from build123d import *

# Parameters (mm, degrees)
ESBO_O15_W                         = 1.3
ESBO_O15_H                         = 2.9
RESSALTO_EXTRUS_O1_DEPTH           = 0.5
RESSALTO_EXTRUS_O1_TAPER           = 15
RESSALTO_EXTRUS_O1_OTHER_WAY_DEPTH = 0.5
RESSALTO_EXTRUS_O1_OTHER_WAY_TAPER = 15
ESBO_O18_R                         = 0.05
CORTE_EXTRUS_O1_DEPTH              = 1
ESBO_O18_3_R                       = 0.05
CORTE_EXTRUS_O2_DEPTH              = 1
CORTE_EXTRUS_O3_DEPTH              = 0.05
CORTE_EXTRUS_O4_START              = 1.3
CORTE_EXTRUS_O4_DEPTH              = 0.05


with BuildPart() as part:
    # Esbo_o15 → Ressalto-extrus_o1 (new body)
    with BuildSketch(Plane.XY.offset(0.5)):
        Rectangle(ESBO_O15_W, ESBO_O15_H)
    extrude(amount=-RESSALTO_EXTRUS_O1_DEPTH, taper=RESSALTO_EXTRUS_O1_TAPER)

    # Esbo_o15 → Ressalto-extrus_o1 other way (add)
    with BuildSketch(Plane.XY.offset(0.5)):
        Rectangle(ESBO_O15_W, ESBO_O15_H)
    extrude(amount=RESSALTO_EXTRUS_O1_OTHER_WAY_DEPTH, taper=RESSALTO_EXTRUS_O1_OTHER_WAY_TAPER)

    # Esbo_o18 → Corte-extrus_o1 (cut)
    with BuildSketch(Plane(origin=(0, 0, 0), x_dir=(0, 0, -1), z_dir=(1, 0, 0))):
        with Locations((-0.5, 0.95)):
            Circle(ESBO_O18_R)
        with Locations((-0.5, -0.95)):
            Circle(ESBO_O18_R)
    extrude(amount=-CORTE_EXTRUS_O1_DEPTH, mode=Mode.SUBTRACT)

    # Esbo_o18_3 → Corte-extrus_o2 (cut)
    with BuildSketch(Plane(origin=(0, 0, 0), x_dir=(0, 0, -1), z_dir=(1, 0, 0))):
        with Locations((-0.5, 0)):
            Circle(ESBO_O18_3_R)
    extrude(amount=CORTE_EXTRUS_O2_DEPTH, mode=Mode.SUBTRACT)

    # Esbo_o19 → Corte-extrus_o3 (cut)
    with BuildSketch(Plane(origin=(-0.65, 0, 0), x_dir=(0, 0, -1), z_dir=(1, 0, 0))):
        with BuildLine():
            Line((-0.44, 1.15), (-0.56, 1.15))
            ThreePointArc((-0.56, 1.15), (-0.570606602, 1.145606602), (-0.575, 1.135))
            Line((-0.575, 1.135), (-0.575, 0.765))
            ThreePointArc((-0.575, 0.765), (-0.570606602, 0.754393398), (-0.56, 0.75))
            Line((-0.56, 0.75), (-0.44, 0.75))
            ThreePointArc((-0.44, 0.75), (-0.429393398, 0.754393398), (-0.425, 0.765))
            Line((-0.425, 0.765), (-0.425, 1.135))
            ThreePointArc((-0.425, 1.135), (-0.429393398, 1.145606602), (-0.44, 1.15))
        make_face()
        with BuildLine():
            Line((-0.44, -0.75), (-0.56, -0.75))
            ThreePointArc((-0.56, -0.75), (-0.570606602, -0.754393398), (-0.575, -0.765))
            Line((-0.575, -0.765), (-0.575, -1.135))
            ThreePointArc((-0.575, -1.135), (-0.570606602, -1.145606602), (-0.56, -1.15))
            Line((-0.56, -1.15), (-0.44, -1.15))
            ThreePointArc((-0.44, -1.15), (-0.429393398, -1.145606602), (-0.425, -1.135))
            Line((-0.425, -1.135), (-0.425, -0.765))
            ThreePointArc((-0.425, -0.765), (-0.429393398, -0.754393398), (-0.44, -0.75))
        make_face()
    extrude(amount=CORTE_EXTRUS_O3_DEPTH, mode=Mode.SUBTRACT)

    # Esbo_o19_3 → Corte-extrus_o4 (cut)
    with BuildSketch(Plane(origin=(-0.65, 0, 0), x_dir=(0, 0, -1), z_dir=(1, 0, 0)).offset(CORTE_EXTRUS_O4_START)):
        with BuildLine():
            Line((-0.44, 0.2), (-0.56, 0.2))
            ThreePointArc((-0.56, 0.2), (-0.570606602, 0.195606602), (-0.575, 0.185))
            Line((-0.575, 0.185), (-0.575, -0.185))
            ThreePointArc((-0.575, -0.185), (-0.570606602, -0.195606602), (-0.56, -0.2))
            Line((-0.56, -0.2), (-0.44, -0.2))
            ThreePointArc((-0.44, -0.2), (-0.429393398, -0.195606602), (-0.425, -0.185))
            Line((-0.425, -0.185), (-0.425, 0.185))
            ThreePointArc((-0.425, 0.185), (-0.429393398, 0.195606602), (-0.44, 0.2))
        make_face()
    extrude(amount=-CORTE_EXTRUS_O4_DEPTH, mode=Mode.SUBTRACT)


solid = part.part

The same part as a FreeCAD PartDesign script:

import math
import FreeCAD as App
import Part
import Sketcher

V = App.Vector
Q = App.Units.Quantity


def add_polygon(sketch, points):
    """Adds a closed chain of lines whose ends are joined by coincident constraints."""
    first, n = sketch.GeometryCount, len(points)
    for a, b in zip(points, points[1:] + points[:1]):
        sketch.addGeometry(Part.LineSegment(App.Vector(*a, 0), App.Vector(*b, 0)), False)
    for i in range(n):
        sketch.addConstraint(Sketcher.Constraint("Coincident", first + i, 2, first + (i + 1) % n, 1))

doc = App.newDocument("Part")
body = doc.addObject("PartDesign::Body", "Body")

sketch1 = doc.addObject("Sketcher::SketchObject", "Sketch")
body.addObject(sketch1)
sketch1.AttachmentSupport = (doc.XY_Plane, [""])
sketch1.MapMode = "FlatFace"
sketch1.AttachmentOffset = App.Placement(V(0, 0, 0.5), App.Rotation())
add_polygon(sketch1, [(-0.7, 1.4), (-0.7, -1.4), (0.7, -1.4), (0.7, 1.4)])
sketch1.addConstraint(Sketcher.Constraint("Vertical", 0))
sketch1.addConstraint(Sketcher.Constraint("Horizontal", 1))
sketch1.addConstraint(Sketcher.Constraint("Vertical", 2))
sketch1.addConstraint(Sketcher.Constraint("Horizontal", 3))
sketch1.addConstraint(Sketcher.Constraint("Symmetric", 0, 2, 2, 2, -1, 1))
sketch1.addConstraint(Sketcher.Constraint("DistanceX", 1, 1, 1, 2, Q("1.3 mm")))
sketch1.addConstraint(Sketcher.Constraint("DistanceY", 0, 2, 0, 1, Q("2.9 mm")))
pad1 = doc.addObject("PartDesign::Pad", "Pad")
body.addObject(pad1)
pad1.Profile = sketch1
pad1.Length = 0.5
pad1.Reversed = True
pad1.TaperAngle = -15

sketch2 = doc.addObject("Sketcher::SketchObject", "Sketch001")
body.addObject(sketch2)
sketch2.AttachmentSupport = (doc.XY_Plane, [""])
sketch2.MapMode = "FlatFace"
sketch2.AttachmentOffset = App.Placement(V(0, 0, 0.5), App.Rotation())
add_polygon(sketch2, [(-0.7, 1.4), (-0.7, -1.4), (0.7, -1.4), (0.7, 1.4)])
sketch2.addConstraint(Sketcher.Constraint("Vertical", 0))
sketch2.addConstraint(Sketcher.Constraint("Horizontal", 1))
sketch2.addConstraint(Sketcher.Constraint("Vertical", 2))
sketch2.addConstraint(Sketcher.Constraint("Horizontal", 3))
sketch2.addConstraint(Sketcher.Constraint("Symmetric", 0, 2, 2, 2, -1, 1))
sketch2.addConstraint(Sketcher.Constraint("DistanceX", 1, 1, 1, 2, Q("1.3 mm")))
sketch2.addConstraint(Sketcher.Constraint("DistanceY", 0, 2, 0, 1, Q("2.9 mm")))
pad2 = doc.addObject("PartDesign::Pad", "Pad001")
body.addObject(pad2)
pad2.Profile = sketch2
pad2.Length = 0.5
pad2.TaperAngle = -15

sketch3 = doc.addObject("Sketcher::SketchObject", "Sketch002")
body.addObject(sketch3)
sketch3.AttachmentSupport = (doc.YZ_Plane, [""])
sketch3.MapMode = "FlatFace"
sketch3.addGeometry(Part.Circle(V(0.95, 0.5, 0), V(0, 0, 1), 0.05), False)
sketch3.addGeometry(Part.Circle(V(-0.95, 0.5, 0), V(0, 0, 1), 0.05), False)
sketch3.addConstraint(Sketcher.Constraint("Equal", 0, 1))
sketch3.addConstraint(Sketcher.Constraint("Symmetric", 0, 3, 1, 3, -2))
sketch3.addConstraint(Sketcher.Constraint("Diameter", 0, Q("0.1 mm")))
sketch3.addConstraint(Sketcher.Constraint("DistanceY", -1, 1, 0, 3, Q("0.5 mm")))
sketch3.addConstraint(Sketcher.Constraint("DistanceX", 1, 3, 0, 3, Q("1.9 mm")))
pocket1 = doc.addObject("PartDesign::Pocket", "Pocket")
body.addObject(pocket1)
pocket1.Profile = sketch3
pocket1.Length = 1

sketch4 = doc.addObject("Sketcher::SketchObject", "Sketch003")
body.addObject(sketch4)
sketch4.AttachmentSupport = (doc.YZ_Plane, [""])
sketch4.MapMode = "FlatFace"
sketch4.addGeometry(Part.Circle(V(0, 0.5, 0), V(0, 0, 1), 0.05), False)
sketch4.addConstraint(Sketcher.Constraint("PointOnObject", 0, 3, -2))
sketch4.addConstraint(Sketcher.Constraint("Diameter", 0, Q("0.1 mm")))
sketch4.addConstraint(Sketcher.Constraint("DistanceY", -1, 1, 0, 3, Q("0.5 mm")))
pocket2 = doc.addObject("PartDesign::Pocket", "Pocket001")
body.addObject(pocket2)
pocket2.Profile = sketch4
pocket2.Length = 1
pocket2.Reversed = True

sketch5 = doc.addObject("Sketcher::SketchObject", "Sketch004")
body.addObject(sketch5)
sketch5.AttachmentSupport = (doc.YZ_Plane, [""])
sketch5.MapMode = "FlatFace"
sketch5.AttachmentOffset = App.Placement(V(0, 0, -0.65), App.Rotation())
sketch5.addGeometry(Part.LineSegment(V(1.15, 0.44, 0), V(1.15, 0.56, 0)), False)
sketch5.addGeometry(Part.ArcOfCircle(Part.Circle(V(1.135, 0.56, 0), V(0, 0, 1), 0.015), math.radians(0), math.radians(90)), False)
sketch5.addGeometry(Part.LineSegment(V(1.135, 0.575, 0), V(0.765, 0.575, 0)), False)
sketch5.addGeometry(Part.ArcOfCircle(Part.Circle(V(0.765, 0.56, 0), V(0, 0, 1), 0.015), math.radians(90), math.radians(180)), False)
sketch5.addGeometry(Part.LineSegment(V(0.75, 0.56, 0), V(0.75, 0.44, 0)), False)
sketch5.addGeometry(Part.ArcOfCircle(Part.Circle(V(0.765, 0.44, 0), V(0, 0, 1), 0.015), math.radians(180), math.radians(270)), False)
sketch5.addGeometry(Part.LineSegment(V(0.765, 0.425, 0), V(1.135, 0.425, 0)), False)
sketch5.addGeometry(Part.ArcOfCircle(Part.Circle(V(1.135, 0.44, 0), V(0, 0, 1), 0.015), math.radians(-90), math.radians(0)), False)
sketch5.addGeometry(Part.LineSegment(V(-0.75, 0.44, 0), V(-0.75, 0.56, 0)), False)
sketch5.addGeometry(Part.ArcOfCircle(Part.Circle(V(-0.765, 0.56, 0), V(0, 0, 1), 0.015), math.radians(0), math.radians(90)), False)
sketch5.addGeometry(Part.LineSegment(V(-0.765, 0.575, 0), V(-1.135, 0.575, 0)), False)
sketch5.addGeometry(Part.ArcOfCircle(Part.Circle(V(-1.135, 0.56, 0), V(0, 0, 1), 0.015), math.radians(90), math.radians(180)), False)
sketch5.addGeometry(Part.LineSegment(V(-1.15, 0.56, 0), V(-1.15, 0.44, 0)), False)
sketch5.addGeometry(Part.ArcOfCircle(Part.Circle(V(-1.135, 0.44, 0), V(0, 0, 1), 0.015), math.radians(180), math.radians(270)), False)
sketch5.addGeometry(Part.LineSegment(V(-1.135, 0.425, 0), V(-0.765, 0.425, 0)), False)
sketch5.addGeometry(Part.ArcOfCircle(Part.Circle(V(-0.765, 0.44, 0), V(0, 0, 1), 0.015), math.radians(-90), math.radians(0)), False)
sketch5.addConstraint(Sketcher.Constraint("Tangent", 0, 2, 1, 1))
sketch5.addConstraint(Sketcher.Constraint("Tangent", 1, 2, 2, 1))
sketch5.addConstraint(Sketcher.Constraint("Tangent", 2, 2, 3, 1))
sketch5.addConstraint(Sketcher.Constraint("Tangent", 3, 2, 4, 1))
sketch5.addConstraint(Sketcher.Constraint("Tangent", 4, 2, 5, 1))
sketch5.addConstraint(Sketcher.Constraint("Tangent", 5, 2, 6, 1))
sketch5.addConstraint(Sketcher.Constraint("Tangent", 6, 2, 7, 1))
sketch5.addConstraint(Sketcher.Constraint("Tangent", 7, 2, 0, 1))
sketch5.addConstraint(Sketcher.Constraint("Tangent", 8, 2, 9, 1))
sketch5.addConstraint(Sketcher.Constraint("Tangent", 9, 2, 10, 1))
sketch5.addConstraint(Sketcher.Constraint("Tangent", 10, 2, 11, 1))
sketch5.addConstraint(Sketcher.Constraint("Tangent", 11, 2, 12, 1))
sketch5.addConstraint(Sketcher.Constraint("Tangent", 12, 2, 13, 1))
sketch5.addConstraint(Sketcher.Constraint("Tangent", 13, 2, 14, 1))
sketch5.addConstraint(Sketcher.Constraint("Tangent", 14, 2, 15, 1))
sketch5.addConstraint(Sketcher.Constraint("Tangent", 15, 2, 8, 1))
sketch5.addConstraint(Sketcher.Constraint("Vertical", 0))
sketch5.addConstraint(Sketcher.Constraint("Horizontal", 2))
sketch5.addConstraint(Sketcher.Constraint("Vertical", 4))
sketch5.addConstraint(Sketcher.Constraint("Horizontal", 6))
sketch5.addConstraint(Sketcher.Constraint("Vertical", 8))
sketch5.addConstraint(Sketcher.Constraint("Horizontal", 10))
sketch5.addConstraint(Sketcher.Constraint("Vertical", 12))
sketch5.addConstraint(Sketcher.Constraint("Horizontal", 14))
sketch5.addConstraint(Sketcher.Constraint("Equal", 1, 3))
sketch5.addConstraint(Sketcher.Constraint("Equal", 3, 5))
sketch5.addConstraint(Sketcher.Constraint("Equal", 5, 7))
sketch5.addConstraint(Sketcher.Constraint("Equal", 7, 9))
sketch5.addConstraint(Sketcher.Constraint("Equal", 9, 11))
sketch5.addConstraint(Sketcher.Constraint("Equal", 11, 13))
sketch5.addConstraint(Sketcher.Constraint("Equal", 13, 15))
sketch5.addConstraint(Sketcher.Constraint("Symmetric", 3, 3, 9, 3, -2))
sketch5.addConstraint(Sketcher.Constraint("Symmetric", 7, 3, 13, 3, -2))
sketch5.addConstraint(Sketcher.Constraint("Radius", 1, Q("0.015 mm")))
sketch5.addConstraint(Sketcher.Constraint("DistanceX", 2, 2, 2, 1, Q("0.37 mm")))
sketch5.addConstraint(Sketcher.Constraint("DistanceY", 0, 1, 0, 2, Q("0.12 mm")))
sketch5.addConstraint(Sketcher.Constraint("DistanceX", 9, 3, 1, 3, Q("1.9 mm")))
sketch5.addConstraint(Sketcher.Constraint("DistanceY", -1, 1, 1, 3, Q("0.56 mm")))
pocket3 = doc.addObject("PartDesign::Pocket", "Pocket002")
body.addObject(pocket3)
pocket3.Profile = sketch5
pocket3.Length = 0.05
pocket3.Reversed = True

sketch6 = doc.addObject("Sketcher::SketchObject", "Sketch005")
body.addObject(sketch6)
sketch6.AttachmentSupport = (doc.YZ_Plane, [""])
sketch6.MapMode = "FlatFace"
sketch6.AttachmentOffset = App.Placement(V(0, 0, 0.65), App.Rotation())
sketch6.addGeometry(Part.LineSegment(V(0.2, 0.44, 0), V(0.2, 0.56, 0)), False)
sketch6.addGeometry(Part.ArcOfCircle(Part.Circle(V(0.185, 0.56, 0), V(0, 0, 1), 0.015), math.radians(0), math.radians(90)), False)
sketch6.addGeometry(Part.LineSegment(V(0.185, 0.575, 0), V(-0.185, 0.575, 0)), False)
sketch6.addGeometry(Part.ArcOfCircle(Part.Circle(V(-0.185, 0.56, 0), V(0, 0, 1), 0.015), math.radians(90), math.radians(180)), False)
sketch6.addGeometry(Part.LineSegment(V(-0.2, 0.56, 0), V(-0.2, 0.44, 0)), False)
sketch6.addGeometry(Part.ArcOfCircle(Part.Circle(V(-0.185, 0.44, 0), V(0, 0, 1), 0.015), math.radians(180), math.radians(270)), False)
sketch6.addGeometry(Part.LineSegment(V(-0.185, 0.425, 0), V(0.185, 0.425, 0)), False)
sketch6.addGeometry(Part.ArcOfCircle(Part.Circle(V(0.185, 0.44, 0), V(0, 0, 1), 0.015), math.radians(-90), math.radians(0)), False)
sketch6.addConstraint(Sketcher.Constraint("Tangent", 0, 2, 1, 1))
sketch6.addConstraint(Sketcher.Constraint("Tangent", 1, 2, 2, 1))
sketch6.addConstraint(Sketcher.Constraint("Tangent", 2, 2, 3, 1))
sketch6.addConstraint(Sketcher.Constraint("Tangent", 3, 2, 4, 1))
sketch6.addConstraint(Sketcher.Constraint("Tangent", 4, 2, 5, 1))
sketch6.addConstraint(Sketcher.Constraint("Tangent", 5, 2, 6, 1))
sketch6.addConstraint(Sketcher.Constraint("Tangent", 6, 2, 7, 1))
sketch6.addConstraint(Sketcher.Constraint("Tangent", 7, 2, 0, 1))
sketch6.addConstraint(Sketcher.Constraint("Vertical", 0))
sketch6.addConstraint(Sketcher.Constraint("Horizontal", 2))
sketch6.addConstraint(Sketcher.Constraint("Vertical", 4))
sketch6.addConstraint(Sketcher.Constraint("Horizontal", 6))
sketch6.addConstraint(Sketcher.Constraint("Equal", 1, 3))
sketch6.addConstraint(Sketcher.Constraint("Equal", 3, 5))
sketch6.addConstraint(Sketcher.Constraint("Equal", 5, 7))
sketch6.addConstraint(Sketcher.Constraint("Radius", 1, Q("0.015 mm")))
sketch6.addConstraint(Sketcher.Constraint("DistanceX", 2, 2, 2, 1, Q("0.37 mm")))
sketch6.addConstraint(Sketcher.Constraint("DistanceY", 0, 1, 0, 2, Q("0.12 mm")))
sketch6.addConstraint(Sketcher.Constraint("DistanceX", -1, 1, 0, 2, Q("0.2 mm")))
sketch6.addConstraint(Sketcher.Constraint("DistanceY", -1, 1, 1, 3, Q("0.56 mm")))
pocket4 = doc.addObject("PartDesign::Pocket", "Pocket003")
body.addObject(pocket4)
pocket4.Profile = sketch6
pocket4.Length = 0.05

doc.recompute()
